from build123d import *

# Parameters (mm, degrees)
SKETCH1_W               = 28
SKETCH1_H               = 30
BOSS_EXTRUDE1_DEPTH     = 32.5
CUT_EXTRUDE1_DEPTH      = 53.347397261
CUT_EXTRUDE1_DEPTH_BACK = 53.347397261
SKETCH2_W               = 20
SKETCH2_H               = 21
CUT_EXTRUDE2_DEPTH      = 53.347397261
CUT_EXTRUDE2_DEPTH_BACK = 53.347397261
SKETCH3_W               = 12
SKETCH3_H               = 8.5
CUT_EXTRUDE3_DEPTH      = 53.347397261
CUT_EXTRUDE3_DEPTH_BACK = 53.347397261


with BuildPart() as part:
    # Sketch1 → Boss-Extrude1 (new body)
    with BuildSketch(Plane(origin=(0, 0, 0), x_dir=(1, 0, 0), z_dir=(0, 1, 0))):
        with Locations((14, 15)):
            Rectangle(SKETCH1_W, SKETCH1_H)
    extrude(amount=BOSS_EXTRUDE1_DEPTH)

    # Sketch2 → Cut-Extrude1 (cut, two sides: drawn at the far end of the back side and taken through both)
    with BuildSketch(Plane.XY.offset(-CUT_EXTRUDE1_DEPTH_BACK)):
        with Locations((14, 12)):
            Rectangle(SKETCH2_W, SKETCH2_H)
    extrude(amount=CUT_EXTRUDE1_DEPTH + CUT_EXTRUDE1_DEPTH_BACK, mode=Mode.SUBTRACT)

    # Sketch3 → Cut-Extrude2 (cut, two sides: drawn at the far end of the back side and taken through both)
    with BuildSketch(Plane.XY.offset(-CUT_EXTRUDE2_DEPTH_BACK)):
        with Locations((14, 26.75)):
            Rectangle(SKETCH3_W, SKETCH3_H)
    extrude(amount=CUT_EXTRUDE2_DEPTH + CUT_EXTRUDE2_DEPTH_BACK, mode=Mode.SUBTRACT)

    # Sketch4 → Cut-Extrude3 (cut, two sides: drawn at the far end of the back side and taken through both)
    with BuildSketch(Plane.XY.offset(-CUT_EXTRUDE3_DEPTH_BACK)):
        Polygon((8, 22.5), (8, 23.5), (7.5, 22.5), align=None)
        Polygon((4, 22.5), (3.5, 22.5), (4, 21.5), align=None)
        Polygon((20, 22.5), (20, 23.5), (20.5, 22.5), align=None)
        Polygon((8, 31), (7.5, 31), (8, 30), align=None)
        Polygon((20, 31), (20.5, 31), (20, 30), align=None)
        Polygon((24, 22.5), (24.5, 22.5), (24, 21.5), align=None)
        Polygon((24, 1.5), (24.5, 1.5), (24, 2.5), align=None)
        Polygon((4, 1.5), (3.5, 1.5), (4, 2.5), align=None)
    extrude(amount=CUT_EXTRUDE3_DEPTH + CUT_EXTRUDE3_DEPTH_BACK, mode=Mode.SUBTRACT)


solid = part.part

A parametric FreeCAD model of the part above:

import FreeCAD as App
import Part
import Sketcher

V = App.Vector
Q = App.Units.Quantity


def add_polygon(sketch, points):
    """Adds a closed chain of lines whose ends are joined by coincident constraints."""
    first, n = sketch.GeometryCount, len(points)
    for a, b in zip(points, points[1:] + points[:1]):
        sketch.addGeometry(Part.LineSegment(App.Vector(*a, 0), App.Vector(*b, 0)), False)
    for i in range(n):
        sketch.addConstraint(Sketcher.Constraint("Coincident", first + i, 2, first + (i + 1) % n, 1))

doc = App.newDocument("Part")
params = doc.addObject("Spreadsheet::Sheet", "Params")
for row, (alias, value) in enumerate([
    ("sketch1_width", "28 mm"),
    ("sketch1_height", "30 mm"),
    ("pad1_length", "32.5 mm"),
    ("sketch2_width", "20 mm"),
    ("sketch2_height", "21 mm"),
    ("sketch3_width", "12 mm"),
    ("sketch3_height", "8.5 mm"),
    ("sketch4_height", "1 mm"),
    ("sketch4_width", "0.5 mm"),
], start=1):
    params.set(f"A{row}", alias)
    params.set(f"B{row}", "=" + value)
    params.setAlias(f"B{row}", alias)

body = doc.addObject("PartDesign::Body", "Body")

# Sketch on XZ plane
sketch1 = body.newObject("Sketcher::SketchObject", "Sketch")
sketch1.AttachmentSupport = (doc.getObject("XZ_Plane"), [""])
sketch1.MapMode = "FlatFace"
add_polygon(sketch1, [(0, -30), (0, 0), (28, 0), (28, -30)])  # lines 0-3
sketch1.addConstraint([
    Sketcher.Constraint("Vertical", 0),
    Sketcher.Constraint("Horizontal", 1),
    Sketcher.Constraint("Vertical", 2),
    Sketcher.Constraint("Horizontal", 3),
    Sketcher.Constraint("Coincident", 0, 2, -1, 1),
    Sketcher.Constraint("DistanceX", 1, 1, 1, 2, Q("28 mm")),
    Sketcher.Constraint("DistanceY", 0, 1, 0, 2, Q("30 mm")),
])
sketch1.setExpression("Constraints[9]", "Params.sketch1_width")
sketch1.setExpression("Constraints[10]", "Params.sketch1_height")
pad1 = body.newObject("PartDesign::Pad", "Pad")
pad1.Profile = sketch1
pad1.setExpression("Length", "Params.pad1_length")
pad1.Reversed = True

# Sketch on XY plane
sketch2 = body.newObject("Sketcher::SketchObject", "Sketch001")
sketch2.AttachmentSupport = (doc.getObject("XY_Plane"), [""])
sketch2.MapMode = "FlatFace"
add_polygon(sketch2, [(4, 22.5), (4, 1.5), (24, 1.5), (24, 22.5)])  # lines 0-3
sketch2.addConstraint([
    Sketcher.Constraint("Vertical", 0),
    Sketcher.Constraint("Horizontal", 1),
    Sketcher.Constraint("Vertical", 2),
    Sketcher.Constraint("Horizontal", 3),
    Sketcher.Constraint("DistanceX", 1, 1, 1, 2, Q("20 mm")),
    Sketcher.Constraint("DistanceY", 0, 2, 0, 1, Q("21 mm")),
    Sketcher.Constraint("DistanceX", -1, 1, 0, 2, Q("4 mm")),
    Sketcher.Constraint("DistanceY", -1, 1, 0, 2, Q("1.5 mm")),
])
sketch2.setExpression("Constraints[8]", "Params.sketch2_width")
sketch2.setExpression("Constraints[9]", "Params.sketch2_height")
pocket1 = body.newObject("PartDesign::Pocket", "Pocket")
pocket1.Profile = sketch2
pocket1.Type = "ThroughAll"
pocket1.Midplane = True

# Sketch on XY plane
sketch3 = body.newObject("Sketcher::SketchObject", "Sketch002")
sketch3.AttachmentSupport = (doc.getObject("XY_Plane"), [""])
sketch3.MapMode = "FlatFace"
add_polygon(sketch3, [(8, 31), (8, 22.5), (20, 22.5), (20, 31)])  # lines 0-3
sketch3.addConstraint([
    Sketcher.Constraint("Vertical", 0),
    Sketcher.Constraint("Horizontal", 1),
    Sketcher.Constraint("Vertical", 2),
    Sketcher.Constraint("Horizontal", 3),
    Sketcher.Constraint("DistanceX", 1, 1, 1, 2, Q("12 mm")),
    Sketcher.Constraint("DistanceY", 0, 2, 0, 1, Q("8.5 mm")),
    Sketcher.Constraint("DistanceX", -1, 1, 0, 2, Q("8 mm")),
    Sketcher.Constraint("DistanceY", -1, 1, 2, 2, Q("31 mm")),
])
sketch3.setExpression("Constraints[8]", "Params.sketch3_width")
sketch3.setExpression("Constraints[9]", "Params.sketch3_height")
pocket2 = body.newObject("PartDesign::Pocket", "Pocket001")
pocket2.Profile = sketch3
pocket2.Type = "ThroughAll"
pocket2.Midplane = True

# Sketch on XY plane
sketch4 = body.newObject("Sketcher::SketchObject", "Sketch003")
sketch4.AttachmentSupport = (doc.getObject("XY_Plane"), [""])
sketch4.MapMode = "FlatFace"
add_polygon(sketch4, [(8, 22.5), (8, 23.5), (7.5, 22.5)])  # lines 0-2
add_polygon(sketch4, [(4, 22.5), (3.5, 22.5), (4, 21.5)])  # lines 3-5
add_polygon(sketch4, [(20, 23.5), (20, 22.5), (20.5, 22.5)])  # lines 6-8
add_polygon(sketch4, [(8, 31), (7.5, 31), (8, 30)])  # lines 9-11
add_polygon(sketch4, [(20.5, 31), (20, 31), (20, 30)])  # lines 12-14
add_polygon(sketch4, [(24.5, 22.5), (24, 22.5), (24, 21.5)])  # lines 15-17
add_polygon(sketch4, [(24, 1.5), (24.5, 1.5), (24, 2.5)])  # lines 18-20
add_polygon(sketch4, [(3.5, 1.5), (4, 1.5), (4, 2.5)])  # lines 21-23
sketch4.addConstraint([
    Sketcher.Constraint("Vertical", 0),
    Sketcher.Constraint("Horizontal", 2),
    Sketcher.Constraint("Horizontal", 3),
    Sketcher.Constraint("Vertical", 5),
    Sketcher.Constraint("Vertical", 6),
    Sketcher.Constraint("Horizontal", 7),
    Sketcher.Constraint("Horizontal", 9),
    Sketcher.Constraint("Vertical", 11),
    Sketcher.Constraint("Horizontal", 12),
    Sketcher.Constraint("Vertical", 13),
    Sketcher.Constraint("Horizontal", 15),
    Sketcher.Constraint("Vertical", 16),
    Sketcher.Constraint("Horizontal", 18),
    Sketcher.Constraint("Vertical", 20),
    Sketcher.Constraint("Horizontal", 21),
    Sketcher.Constraint("Vertical", 22),
    Sketcher.Constraint("Parallel", 4, 8),
    Sketcher.Constraint("Parallel", 8, 10),
    Sketcher.Constraint("Parallel", 1, 14),
    Sketcher.Constraint("Parallel", 14, 17),
    Sketcher.Constraint("Parallel", 10, 19),
    Sketcher.Constraint("Parallel", 17, 23),
    Sketcher.Constraint("Horizontal", 2, 2, 3, 2),
    Sketcher.Constraint("Horizontal", 5, 2, 6, 2),
    Sketcher.Constraint("Horizontal", 0, 2, 8, 2),
    Sketcher.Constraint("Horizontal", 11, 2, 12, 2),
    Sketcher.Constraint("Horizontal", 10, 2, 13, 2),
    Sketcher.Constraint("Horizontal", 7, 2, 15, 2),
    Sketcher.Constraint("Horizontal", 4, 2, 16, 2),
    Sketcher.Constraint("Horizontal", 20, 2, 21, 2),
    Sketcher.Constraint("Horizontal", 19, 2, 22, 2),
    Sketcher.Constraint("Vertical", 1, 2, 9, 2),
    Sketcher.Constraint("Vertical", 2, 2, 10, 2),
    Sketcher.Constraint("Vertical", 8, 2, 12, 2),
    Sketcher.Constraint("Vertical", 7, 2, 14, 2),
    Sketcher.Constraint("Vertical", 17, 2, 18, 2),
    Sketcher.Constraint("Vertical", 16, 2, 19, 2),
    Sketcher.Constraint("Vertical", 5, 2, 21, 2),
    Sketcher.Constraint("Equal", 2, 3),
    Sketcher.Constraint("DistanceY", 0, 1, 0, 2, Q("1 mm")),
    Sketcher.Constraint("DistanceX", 2, 1, 2, 2, Q("0.5 mm")),
    Sketcher.Constraint("DistanceX", -1, 1, 0, 2, Q("8 mm")),
    Sketcher.Constraint("DistanceX", -1, 1, 4, 2, Q("4 mm")),
    Sketcher.Constraint("DistanceX", -1, 1, 6, 2, Q("20 mm")),
    Sketcher.Constraint("DistanceY", -1, 1, 9, 2, Q("31 mm")),
    Sketcher.Constraint("DistanceX", -1, 1, 15, 2, Q("24 mm")),
    Sketcher.Constraint("DistanceY", 18, 2, 16, 2, Q("20 mm")),
    Sketcher.Constraint("DistanceY", -1, 1, 0, 2, Q("23.5 mm")),
])
sketch4.setExpression("Constraints[63]", "Params.sketch4_height")
sketch4.setExpression("Constraints[64]", "Params.sketch4_width")
pocket3 = body.newObject("PartDesign::Pocket", "Pocket002")
pocket3.Profile = sketch4
pocket3.Type = "ThroughAll"
pocket3.Midplane = True

doc.recompute()
